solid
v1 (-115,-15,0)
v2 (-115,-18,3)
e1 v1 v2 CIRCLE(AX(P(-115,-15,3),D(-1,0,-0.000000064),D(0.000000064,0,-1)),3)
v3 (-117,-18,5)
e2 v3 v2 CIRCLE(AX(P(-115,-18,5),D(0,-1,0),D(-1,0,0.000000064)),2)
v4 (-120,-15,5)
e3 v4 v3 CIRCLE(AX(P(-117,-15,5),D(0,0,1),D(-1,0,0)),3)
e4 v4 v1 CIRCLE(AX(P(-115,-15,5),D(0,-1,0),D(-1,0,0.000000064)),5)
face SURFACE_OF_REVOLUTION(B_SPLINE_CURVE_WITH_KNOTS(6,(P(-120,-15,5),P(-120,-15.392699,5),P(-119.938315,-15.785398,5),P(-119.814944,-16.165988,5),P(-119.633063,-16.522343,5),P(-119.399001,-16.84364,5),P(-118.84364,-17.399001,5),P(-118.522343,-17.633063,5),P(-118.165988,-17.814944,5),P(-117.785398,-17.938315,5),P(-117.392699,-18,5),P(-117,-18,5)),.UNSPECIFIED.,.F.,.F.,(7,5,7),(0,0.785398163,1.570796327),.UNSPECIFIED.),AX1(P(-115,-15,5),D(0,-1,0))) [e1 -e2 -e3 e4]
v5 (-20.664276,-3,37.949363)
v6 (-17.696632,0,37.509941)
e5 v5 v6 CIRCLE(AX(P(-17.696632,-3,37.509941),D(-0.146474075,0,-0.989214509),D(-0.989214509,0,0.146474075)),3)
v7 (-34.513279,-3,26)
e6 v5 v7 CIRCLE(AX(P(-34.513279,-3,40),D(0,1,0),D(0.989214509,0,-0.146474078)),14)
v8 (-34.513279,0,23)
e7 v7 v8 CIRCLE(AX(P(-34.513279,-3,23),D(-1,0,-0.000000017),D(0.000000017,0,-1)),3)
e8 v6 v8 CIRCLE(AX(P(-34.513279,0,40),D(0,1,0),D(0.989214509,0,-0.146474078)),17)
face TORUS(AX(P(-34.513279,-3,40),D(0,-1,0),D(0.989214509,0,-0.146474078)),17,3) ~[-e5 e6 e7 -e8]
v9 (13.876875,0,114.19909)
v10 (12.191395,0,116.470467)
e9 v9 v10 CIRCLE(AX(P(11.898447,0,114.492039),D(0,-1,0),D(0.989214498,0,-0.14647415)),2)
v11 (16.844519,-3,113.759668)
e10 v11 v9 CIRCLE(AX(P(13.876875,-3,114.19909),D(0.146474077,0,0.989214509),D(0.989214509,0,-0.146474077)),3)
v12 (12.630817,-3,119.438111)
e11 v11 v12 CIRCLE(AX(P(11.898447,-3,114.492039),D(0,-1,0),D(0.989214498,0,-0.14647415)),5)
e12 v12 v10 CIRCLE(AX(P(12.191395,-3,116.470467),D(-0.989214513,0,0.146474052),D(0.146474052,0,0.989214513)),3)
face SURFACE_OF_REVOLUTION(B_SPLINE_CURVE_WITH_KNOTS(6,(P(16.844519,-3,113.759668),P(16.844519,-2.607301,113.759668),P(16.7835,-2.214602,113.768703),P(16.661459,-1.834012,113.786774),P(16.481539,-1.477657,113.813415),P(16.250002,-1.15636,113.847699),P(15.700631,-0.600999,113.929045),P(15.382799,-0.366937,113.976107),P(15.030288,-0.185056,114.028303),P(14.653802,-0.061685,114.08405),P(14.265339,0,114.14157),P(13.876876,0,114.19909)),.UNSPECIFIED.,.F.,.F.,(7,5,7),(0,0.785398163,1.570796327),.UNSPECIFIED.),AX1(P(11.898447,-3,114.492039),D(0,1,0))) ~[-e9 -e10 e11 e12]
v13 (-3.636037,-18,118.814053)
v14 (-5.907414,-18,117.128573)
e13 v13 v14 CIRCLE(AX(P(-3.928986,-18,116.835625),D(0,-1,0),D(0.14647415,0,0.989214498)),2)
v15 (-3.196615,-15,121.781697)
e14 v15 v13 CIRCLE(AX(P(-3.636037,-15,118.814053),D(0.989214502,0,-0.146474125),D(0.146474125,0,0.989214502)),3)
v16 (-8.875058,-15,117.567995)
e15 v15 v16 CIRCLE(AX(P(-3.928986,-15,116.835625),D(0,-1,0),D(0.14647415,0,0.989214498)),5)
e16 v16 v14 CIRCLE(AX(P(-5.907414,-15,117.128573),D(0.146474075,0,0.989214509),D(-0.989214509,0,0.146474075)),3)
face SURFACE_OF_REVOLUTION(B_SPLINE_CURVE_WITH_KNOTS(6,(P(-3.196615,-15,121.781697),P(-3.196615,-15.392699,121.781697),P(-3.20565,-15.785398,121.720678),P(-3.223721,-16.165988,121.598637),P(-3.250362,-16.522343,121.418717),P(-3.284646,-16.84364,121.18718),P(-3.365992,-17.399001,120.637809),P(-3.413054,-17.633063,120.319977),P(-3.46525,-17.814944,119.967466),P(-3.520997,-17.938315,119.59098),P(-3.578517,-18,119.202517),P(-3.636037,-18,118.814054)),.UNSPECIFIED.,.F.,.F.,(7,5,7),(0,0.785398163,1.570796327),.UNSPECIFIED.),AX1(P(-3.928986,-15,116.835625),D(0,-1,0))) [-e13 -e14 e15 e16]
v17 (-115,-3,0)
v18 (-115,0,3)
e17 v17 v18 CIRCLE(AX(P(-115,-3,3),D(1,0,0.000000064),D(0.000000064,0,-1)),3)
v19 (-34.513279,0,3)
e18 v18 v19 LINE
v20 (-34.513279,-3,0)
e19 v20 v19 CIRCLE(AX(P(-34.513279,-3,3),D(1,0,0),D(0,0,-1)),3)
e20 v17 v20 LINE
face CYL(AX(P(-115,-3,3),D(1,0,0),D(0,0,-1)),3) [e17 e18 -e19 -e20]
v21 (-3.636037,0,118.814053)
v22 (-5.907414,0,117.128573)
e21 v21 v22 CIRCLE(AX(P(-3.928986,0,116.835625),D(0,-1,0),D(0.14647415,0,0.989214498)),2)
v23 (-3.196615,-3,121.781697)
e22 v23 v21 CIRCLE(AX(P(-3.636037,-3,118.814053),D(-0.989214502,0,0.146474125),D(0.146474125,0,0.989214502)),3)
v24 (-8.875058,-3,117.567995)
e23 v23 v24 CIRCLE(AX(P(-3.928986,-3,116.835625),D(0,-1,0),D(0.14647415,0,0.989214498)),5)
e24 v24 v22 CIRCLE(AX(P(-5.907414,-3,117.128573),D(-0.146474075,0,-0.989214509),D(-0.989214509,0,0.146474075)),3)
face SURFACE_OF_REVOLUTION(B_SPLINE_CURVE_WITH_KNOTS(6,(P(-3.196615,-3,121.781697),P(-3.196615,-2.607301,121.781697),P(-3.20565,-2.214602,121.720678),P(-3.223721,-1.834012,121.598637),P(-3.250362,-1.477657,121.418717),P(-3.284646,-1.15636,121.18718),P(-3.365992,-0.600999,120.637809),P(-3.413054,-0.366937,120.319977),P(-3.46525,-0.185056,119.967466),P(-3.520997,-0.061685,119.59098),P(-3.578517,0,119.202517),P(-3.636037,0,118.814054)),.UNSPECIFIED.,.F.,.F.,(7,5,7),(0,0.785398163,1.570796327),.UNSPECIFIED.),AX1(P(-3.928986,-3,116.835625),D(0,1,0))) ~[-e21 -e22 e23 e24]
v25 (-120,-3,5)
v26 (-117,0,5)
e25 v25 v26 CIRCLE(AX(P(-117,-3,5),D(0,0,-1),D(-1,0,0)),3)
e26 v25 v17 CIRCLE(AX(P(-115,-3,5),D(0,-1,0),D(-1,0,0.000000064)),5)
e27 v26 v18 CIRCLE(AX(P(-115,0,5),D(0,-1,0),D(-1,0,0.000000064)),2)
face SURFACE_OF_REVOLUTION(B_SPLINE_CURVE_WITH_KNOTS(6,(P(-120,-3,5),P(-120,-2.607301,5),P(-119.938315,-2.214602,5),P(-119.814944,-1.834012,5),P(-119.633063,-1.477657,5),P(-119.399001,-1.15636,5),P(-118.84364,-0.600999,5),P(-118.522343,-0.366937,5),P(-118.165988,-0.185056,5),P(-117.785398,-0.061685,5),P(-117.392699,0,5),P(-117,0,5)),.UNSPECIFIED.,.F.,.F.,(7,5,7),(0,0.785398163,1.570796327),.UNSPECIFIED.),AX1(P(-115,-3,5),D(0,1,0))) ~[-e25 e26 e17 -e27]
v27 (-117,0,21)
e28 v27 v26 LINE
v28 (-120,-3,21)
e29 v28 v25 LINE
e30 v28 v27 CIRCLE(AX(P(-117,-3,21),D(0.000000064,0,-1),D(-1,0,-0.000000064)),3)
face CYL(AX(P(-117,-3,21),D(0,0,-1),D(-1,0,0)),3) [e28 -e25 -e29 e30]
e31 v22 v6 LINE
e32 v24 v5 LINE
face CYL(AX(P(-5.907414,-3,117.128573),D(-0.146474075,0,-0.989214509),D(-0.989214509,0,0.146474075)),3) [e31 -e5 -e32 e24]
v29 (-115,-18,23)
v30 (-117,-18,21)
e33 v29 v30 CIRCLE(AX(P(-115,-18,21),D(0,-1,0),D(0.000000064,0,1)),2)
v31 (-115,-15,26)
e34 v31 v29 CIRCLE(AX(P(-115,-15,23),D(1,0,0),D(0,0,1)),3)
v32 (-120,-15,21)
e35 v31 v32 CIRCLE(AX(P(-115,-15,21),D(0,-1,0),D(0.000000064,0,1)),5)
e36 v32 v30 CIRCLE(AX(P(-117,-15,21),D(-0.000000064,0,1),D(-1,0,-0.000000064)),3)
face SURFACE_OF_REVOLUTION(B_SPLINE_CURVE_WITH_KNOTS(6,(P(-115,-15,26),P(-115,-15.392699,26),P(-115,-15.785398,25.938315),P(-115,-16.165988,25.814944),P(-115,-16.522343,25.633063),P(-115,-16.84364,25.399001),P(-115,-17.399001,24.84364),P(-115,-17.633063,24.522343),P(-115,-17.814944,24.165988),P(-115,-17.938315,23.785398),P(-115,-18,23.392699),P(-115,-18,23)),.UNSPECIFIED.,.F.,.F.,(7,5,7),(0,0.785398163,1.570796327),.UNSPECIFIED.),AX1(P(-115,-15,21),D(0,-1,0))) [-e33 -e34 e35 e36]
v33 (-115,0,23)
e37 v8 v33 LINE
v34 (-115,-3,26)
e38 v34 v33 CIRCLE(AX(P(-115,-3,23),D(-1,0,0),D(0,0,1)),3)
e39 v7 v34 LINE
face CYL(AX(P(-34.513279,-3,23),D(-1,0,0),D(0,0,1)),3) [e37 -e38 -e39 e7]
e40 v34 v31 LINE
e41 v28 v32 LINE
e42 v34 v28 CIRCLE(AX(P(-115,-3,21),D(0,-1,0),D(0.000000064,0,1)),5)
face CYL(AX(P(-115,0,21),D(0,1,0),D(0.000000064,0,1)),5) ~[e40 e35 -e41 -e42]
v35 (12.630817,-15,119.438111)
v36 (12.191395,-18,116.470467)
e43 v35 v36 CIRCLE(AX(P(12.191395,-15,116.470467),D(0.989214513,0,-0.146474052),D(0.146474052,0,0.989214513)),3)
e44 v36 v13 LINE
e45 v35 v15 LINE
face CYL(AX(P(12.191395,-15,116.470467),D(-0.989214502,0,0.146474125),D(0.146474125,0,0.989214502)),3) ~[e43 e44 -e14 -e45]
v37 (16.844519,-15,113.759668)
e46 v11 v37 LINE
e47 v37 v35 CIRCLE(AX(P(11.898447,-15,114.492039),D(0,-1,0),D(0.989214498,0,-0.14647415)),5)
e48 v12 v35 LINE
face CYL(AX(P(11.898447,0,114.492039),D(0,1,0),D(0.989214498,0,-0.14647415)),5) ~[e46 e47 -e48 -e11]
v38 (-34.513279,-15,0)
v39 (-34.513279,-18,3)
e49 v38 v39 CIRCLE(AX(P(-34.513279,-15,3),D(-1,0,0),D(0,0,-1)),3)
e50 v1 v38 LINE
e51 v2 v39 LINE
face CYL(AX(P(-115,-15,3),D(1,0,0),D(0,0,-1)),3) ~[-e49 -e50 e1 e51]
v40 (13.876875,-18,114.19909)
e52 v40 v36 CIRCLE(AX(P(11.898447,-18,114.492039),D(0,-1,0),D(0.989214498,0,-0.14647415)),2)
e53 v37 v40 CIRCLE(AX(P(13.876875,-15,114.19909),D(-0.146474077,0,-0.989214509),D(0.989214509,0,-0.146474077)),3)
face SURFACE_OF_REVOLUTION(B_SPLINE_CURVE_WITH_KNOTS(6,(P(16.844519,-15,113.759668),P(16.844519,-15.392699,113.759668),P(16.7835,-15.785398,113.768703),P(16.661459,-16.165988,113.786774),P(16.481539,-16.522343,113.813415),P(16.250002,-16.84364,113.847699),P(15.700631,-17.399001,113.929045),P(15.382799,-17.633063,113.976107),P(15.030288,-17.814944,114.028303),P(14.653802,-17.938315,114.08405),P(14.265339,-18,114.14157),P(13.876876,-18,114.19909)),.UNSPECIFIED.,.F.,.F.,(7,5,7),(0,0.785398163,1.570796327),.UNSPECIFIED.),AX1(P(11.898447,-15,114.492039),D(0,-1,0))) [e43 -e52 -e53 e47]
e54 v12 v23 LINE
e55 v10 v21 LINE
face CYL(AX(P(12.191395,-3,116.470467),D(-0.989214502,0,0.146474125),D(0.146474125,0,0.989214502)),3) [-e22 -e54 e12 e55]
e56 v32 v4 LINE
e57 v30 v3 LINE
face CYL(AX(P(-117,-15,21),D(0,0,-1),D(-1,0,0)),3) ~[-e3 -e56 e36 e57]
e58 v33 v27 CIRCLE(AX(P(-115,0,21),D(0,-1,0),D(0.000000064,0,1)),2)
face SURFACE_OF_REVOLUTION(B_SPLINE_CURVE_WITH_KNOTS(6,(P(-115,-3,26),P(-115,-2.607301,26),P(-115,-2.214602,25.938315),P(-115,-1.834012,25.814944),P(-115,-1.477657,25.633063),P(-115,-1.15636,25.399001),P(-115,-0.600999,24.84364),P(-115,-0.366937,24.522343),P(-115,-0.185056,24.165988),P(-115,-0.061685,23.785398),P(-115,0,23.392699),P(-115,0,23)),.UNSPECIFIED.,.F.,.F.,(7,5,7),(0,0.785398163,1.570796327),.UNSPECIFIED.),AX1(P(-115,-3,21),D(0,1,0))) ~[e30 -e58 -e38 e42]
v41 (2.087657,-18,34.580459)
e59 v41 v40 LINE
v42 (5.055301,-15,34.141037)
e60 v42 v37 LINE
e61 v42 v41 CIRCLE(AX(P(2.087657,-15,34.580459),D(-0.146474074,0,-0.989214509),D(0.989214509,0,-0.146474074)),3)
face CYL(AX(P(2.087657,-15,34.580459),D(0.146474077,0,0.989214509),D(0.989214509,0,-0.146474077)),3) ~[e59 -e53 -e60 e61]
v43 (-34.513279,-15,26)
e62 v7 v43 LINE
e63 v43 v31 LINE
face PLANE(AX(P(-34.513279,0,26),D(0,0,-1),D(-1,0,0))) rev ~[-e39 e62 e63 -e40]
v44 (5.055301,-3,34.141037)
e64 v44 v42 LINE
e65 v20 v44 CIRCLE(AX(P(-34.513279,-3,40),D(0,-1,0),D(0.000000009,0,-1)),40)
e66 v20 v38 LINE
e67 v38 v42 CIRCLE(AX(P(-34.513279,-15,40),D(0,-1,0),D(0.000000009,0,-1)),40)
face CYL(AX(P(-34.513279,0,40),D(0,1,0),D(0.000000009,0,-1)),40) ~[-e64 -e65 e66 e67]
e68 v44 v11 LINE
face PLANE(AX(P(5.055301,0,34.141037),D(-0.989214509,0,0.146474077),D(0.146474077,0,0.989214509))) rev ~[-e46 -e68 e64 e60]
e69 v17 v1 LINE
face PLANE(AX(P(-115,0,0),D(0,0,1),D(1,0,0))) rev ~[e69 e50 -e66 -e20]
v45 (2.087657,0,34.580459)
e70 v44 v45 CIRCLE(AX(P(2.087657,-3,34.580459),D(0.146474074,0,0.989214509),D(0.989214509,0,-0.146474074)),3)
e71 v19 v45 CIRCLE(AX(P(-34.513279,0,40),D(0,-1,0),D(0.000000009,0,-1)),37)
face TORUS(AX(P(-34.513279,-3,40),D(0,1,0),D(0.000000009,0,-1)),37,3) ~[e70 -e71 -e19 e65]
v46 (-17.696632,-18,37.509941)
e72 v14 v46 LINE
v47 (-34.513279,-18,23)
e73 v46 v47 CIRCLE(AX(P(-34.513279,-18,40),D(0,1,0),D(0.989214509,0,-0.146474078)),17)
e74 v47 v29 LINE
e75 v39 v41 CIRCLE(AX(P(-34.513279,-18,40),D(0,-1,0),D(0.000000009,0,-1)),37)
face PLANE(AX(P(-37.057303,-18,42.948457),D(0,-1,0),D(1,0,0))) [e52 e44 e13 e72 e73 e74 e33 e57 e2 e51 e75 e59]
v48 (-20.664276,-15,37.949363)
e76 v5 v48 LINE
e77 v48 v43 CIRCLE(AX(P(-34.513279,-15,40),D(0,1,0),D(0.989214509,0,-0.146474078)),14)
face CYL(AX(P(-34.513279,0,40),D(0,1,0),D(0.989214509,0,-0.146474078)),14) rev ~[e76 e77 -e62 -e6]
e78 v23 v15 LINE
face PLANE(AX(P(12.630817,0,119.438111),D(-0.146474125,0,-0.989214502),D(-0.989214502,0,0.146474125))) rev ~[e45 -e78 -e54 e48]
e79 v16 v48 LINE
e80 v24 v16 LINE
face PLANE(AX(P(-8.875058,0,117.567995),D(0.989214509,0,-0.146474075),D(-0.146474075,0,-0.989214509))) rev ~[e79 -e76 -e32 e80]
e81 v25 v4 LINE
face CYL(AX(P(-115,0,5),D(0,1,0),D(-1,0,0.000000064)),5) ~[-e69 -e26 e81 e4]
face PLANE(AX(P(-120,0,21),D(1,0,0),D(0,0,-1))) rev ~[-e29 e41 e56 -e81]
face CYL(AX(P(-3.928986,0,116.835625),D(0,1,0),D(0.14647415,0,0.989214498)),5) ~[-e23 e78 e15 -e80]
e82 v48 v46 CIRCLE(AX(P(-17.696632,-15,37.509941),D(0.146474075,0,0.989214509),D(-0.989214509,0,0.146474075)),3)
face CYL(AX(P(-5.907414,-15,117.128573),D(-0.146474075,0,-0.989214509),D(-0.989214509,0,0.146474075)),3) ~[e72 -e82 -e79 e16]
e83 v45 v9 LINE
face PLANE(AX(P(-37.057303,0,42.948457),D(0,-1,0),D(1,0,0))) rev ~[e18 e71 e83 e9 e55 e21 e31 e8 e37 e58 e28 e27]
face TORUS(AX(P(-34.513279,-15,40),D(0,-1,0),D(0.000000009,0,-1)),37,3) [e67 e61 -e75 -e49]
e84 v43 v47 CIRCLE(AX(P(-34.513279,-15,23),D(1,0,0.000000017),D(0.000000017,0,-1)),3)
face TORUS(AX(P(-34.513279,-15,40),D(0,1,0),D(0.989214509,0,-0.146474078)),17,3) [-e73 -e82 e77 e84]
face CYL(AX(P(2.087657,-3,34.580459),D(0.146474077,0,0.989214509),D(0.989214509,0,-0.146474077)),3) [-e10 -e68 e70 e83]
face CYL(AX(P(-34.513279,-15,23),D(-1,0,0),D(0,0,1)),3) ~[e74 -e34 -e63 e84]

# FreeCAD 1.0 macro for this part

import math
import FreeCAD as App
import Part
import Sketcher

V = App.Vector
Q = App.Units.Quantity


def edges_at(feature, points):
    """Names of the edges that pass closest to the given points."""
    edges = feature.Shape.Edges
    near = lambda p: min(range(len(edges)), key=lambda i: edges[i].distToShape(Part.Vertex(*p))[0])
    return sorted({f"Edge{near(p) + 1}" for p in points})

doc = App.newDocument("Part")
body = doc.addObject("PartDesign::Body", "Body")

# Sketch on XZ plane
sketch1 = doc.addObject("Sketcher::SketchObject", "Sketch")
body.addObject(sketch1)
sketch1.AttachmentSupport = (doc.XZ_Plane, [""])
sketch1.MapMode = "FlatFace"
sketch1.addGeometry(Part.ArcOfCircle(Part.Circle(V(-115, 5, 0), V(0, 0, 1), 5), math.radians(179.999996), math.radians(270.000004)), False)
sketch1.addGeometry(Part.LineSegment(V(-115, 0, 0), V(-34.513279, 0, 0)), False)
sketch1.addGeometry(Part.ArcOfCircle(Part.Circle(V(-34.513279, 40, 0), V(0, 0, 1), 40), math.radians(-90), math.radians(-8.422649)), False)
sketch1.addGeometry(Part.LineSegment(V(5.055301, 34.141037, 0), V(16.844519, 113.759668, 0)), False)
sketch1.addGeometry(Part.ArcOfCircle(Part.Circle(V(11.898447, 114.492039, 0), V(0, 0, 1), 5), math.radians(-8.422653), math.radians(81.577352)), False)
sketch1.addGeometry(Part.LineSegment(V(12.630817, 119.438111, 0), V(-3.196615, 121.781697, 0)), False)
sketch1.addGeometry(Part.ArcOfCircle(Part.Circle(V(-3.928986, 116.835625, 0), V(0, 0, 1), 5), math.radians(81.577347), math.radians(171.577352)), False)
sketch1.addGeometry(Part.LineSegment(V(-8.875058, 117.567995, 0), V(-20.664276, 37.949363, 0)), False)
sketch1.addGeometry(Part.ArcOfCircle(Part.Circle(V(-34.513279, 40, 0), V(0, 0, 1), 14), math.radians(-89.999999), math.radians(-8.422649)), False)
sketch1.addGeometry(Part.LineSegment(V(-34.513279, 26, 0), V(-115, 26, 0)), False)
sketch1.addGeometry(Part.ArcOfCircle(Part.Circle(V(-115, 21, 0), V(0, 0, 1), 5), math.radians(89.999996), math.radians(180.000004)), False)
sketch1.addGeometry(Part.LineSegment(V(-120, 21, 0), V(-120, 5, 0)), False)
sketch1.addConstraint(Sketcher.Constraint("Tangent", 0, 2, 1, 1))
sketch1.addConstraint(Sketcher.Constraint("Tangent", 1, 2, 2, 1))
sketch1.addConstraint(Sketcher.Constraint("Tangent", 2, 2, 3, 1))
sketch1.addConstraint(Sketcher.Constraint("Tangent", 3, 2, 4, 1))
sketch1.addConstraint(Sketcher.Constraint("Tangent", 4, 2, 5, 1))
sketch1.addConstraint(Sketcher.Constraint("Tangent", 5, 2, 6, 1))
sketch1.addConstraint(Sketcher.Constraint("Tangent", 6, 2, 7, 1))
sketch1.addConstraint(Sketcher.Constraint("Tangent", 7, 2, 8, 2))
sketch1.addConstraint(Sketcher.Constraint("Tangent", 8, 1, 9, 1))
sketch1.addConstraint(Sketcher.Constraint("Tangent", 9, 2, 10, 1))
sketch1.addConstraint(Sketcher.Constraint("Tangent", 10, 2, 11, 1))
sketch1.addConstraint(Sketcher.Constraint("Tangent", 11, 2, 0, 1))
sketch1.addConstraint(Sketcher.Constraint("Horizontal", 1))
sketch1.addConstraint(Sketcher.Constraint("Horizontal", 9))
sketch1.addConstraint(Sketcher.Constraint("Vertical", 11))
sketch1.addConstraint(Sketcher.Constraint("Coincident", 8, 3, 2, 3))
sketch1.addConstraint(Sketcher.Constraint("Equal", 0, 4))
sketch1.addConstraint(Sketcher.Constraint("Equal", 4, 6))
sketch1.addConstraint(Sketcher.Constraint("Equal", 6, 10))
sketch1.addConstraint(Sketcher.Constraint("PointOnObject", 0, 2, -1))
sketch1.addConstraint(Sketcher.Constraint("Perpendicular", 3, 5))
sketch1.addConstraint(Sketcher.Constraint("Perpendicular", 5, 7))
sketch1.addConstraint(Sketcher.Constraint("Radius", 0, Q("5 mm")))
sketch1.addConstraint(Sketcher.Constraint("Radius", 2, Q("40 mm")))
sketch1.addConstraint(Sketcher.Constraint("Radius", 8, Q("14 mm")))
sketch1.addConstraint(Sketcher.Constraint("DistanceX", 0, 3, -1, 1, Q("115 mm")))
sketch1.addConstraint(Sketcher.Constraint("DistanceY", 2, 2, 4, 3, Q("80.351002 mm")))
sketch1.addConstraint(Sketcher.Constraint("DistanceX", 1, 1, 1, 2, Q("80.486721 mm")))
sketch1.addConstraint(Sketcher.Constraint("DistanceX", -1, 1, 2, 2, Q("5.055301 mm")))
pad1 = doc.addObject("PartDesign::Pad", "Pad")
body.addObject(pad1)
pad1.Profile = sketch1
pad1.Length = 18
doc.recompute()

fillet = doc.addObject("PartDesign::Fillet", "Fillet")
body.addObject(fillet)
fillet.Base = (pad1, edges_at(pad1, [
    (-14.77, -18, 77.759),
    (-25.367, -18, 29.4),
    (-74.757, -18, 26),
    (-118.536, -18, 24.536),
    (-120, -18, 13),
    (-118.536, -18, 1.464),
    (-74.757, -18, 0),
    (-8.382, -18, 9.715),
    (10.95, -18, 73.95),
    (15.914, -18, 117.472),
    (4.717, -18, 120.61),
    (-6.909, -18, 120.851),
    (-14.77, 0, 77.759),
    (-25.367, 0, 29.4),
    (-74.757, 0, 26),
    (-118.536, 0, 24.536),
    (-120, 0, 13),
    (-118.536, 0, 1.464),
    (-74.757, 0, 0),
    (-8.382, 0, 9.715),
    (10.95, 0, 73.95),
    (15.914, 0, 117.472),
    (4.717, 0, 120.61),
    (-6.909, 0, 120.851),
]))
fillet.Radius = 3

doc.recompute()
